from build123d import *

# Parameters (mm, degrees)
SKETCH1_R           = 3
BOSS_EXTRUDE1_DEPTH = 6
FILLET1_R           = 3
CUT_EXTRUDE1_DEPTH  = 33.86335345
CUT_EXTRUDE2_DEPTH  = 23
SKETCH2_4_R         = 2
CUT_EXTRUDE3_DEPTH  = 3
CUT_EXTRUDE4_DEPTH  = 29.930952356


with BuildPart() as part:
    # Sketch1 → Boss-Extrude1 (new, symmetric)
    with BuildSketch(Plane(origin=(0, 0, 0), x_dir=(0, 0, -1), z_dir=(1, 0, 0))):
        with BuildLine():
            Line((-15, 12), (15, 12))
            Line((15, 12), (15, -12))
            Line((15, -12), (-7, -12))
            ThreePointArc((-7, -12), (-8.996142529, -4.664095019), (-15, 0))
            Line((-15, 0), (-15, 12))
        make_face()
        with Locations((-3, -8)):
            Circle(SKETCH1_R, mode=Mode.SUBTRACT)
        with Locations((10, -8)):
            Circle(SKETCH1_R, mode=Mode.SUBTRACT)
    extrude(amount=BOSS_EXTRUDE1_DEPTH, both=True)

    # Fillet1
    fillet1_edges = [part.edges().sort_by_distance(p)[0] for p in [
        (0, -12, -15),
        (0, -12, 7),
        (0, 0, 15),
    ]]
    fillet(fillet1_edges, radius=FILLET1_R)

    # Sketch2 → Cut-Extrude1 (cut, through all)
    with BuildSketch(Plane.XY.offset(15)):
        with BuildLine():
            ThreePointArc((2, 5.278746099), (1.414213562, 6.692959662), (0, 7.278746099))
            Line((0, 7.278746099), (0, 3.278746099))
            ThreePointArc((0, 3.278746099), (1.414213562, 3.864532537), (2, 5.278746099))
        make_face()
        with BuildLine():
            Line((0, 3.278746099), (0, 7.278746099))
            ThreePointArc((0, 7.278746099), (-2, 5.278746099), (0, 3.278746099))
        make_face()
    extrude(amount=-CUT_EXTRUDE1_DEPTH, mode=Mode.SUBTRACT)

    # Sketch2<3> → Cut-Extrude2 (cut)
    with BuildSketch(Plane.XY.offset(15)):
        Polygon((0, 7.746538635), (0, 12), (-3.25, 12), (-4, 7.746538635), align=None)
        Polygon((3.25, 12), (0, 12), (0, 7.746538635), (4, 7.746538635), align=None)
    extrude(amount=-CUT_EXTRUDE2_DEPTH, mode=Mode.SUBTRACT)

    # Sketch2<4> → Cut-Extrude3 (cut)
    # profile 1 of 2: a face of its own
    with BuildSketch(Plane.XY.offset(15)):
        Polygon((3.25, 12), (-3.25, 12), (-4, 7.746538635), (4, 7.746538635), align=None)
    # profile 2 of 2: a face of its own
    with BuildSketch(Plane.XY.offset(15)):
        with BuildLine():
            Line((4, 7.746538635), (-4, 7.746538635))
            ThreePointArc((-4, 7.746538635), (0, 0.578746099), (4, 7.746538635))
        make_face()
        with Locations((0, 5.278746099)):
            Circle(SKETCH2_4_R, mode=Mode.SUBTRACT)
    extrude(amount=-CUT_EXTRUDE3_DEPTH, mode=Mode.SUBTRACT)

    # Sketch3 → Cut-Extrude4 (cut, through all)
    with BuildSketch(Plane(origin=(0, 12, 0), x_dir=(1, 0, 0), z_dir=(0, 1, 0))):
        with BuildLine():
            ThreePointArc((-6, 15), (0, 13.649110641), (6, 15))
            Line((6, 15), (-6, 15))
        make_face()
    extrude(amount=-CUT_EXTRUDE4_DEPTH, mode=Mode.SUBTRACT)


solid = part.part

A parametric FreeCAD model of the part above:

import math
import FreeCAD as App
import Part
import Sketcher
from FreeCAD import Vector
Q = App.Units.Quantity


def edges_at(feature, points):
    """Names of the edges that pass closest to the given points."""
    edges = feature.Shape.Edges
    near = lambda p: min(range(len(edges)), key=lambda i: edges[i].distToShape(Part.Vertex(*p))[0])
    return sorted({f"Edge{near(p) + 1}" for p in points})

doc = App.newDocument("Part")
body = doc.addObject("PartDesign::Body", "Body")

sketch1 = body.newObject("Sketcher::SketchObject", "Sketch")
sketch1.AttachmentSupport = (doc.getObject("YZ_Plane"), [""])
sketch1.MapMode = "FlatFace"
sketch1.addGeometry([
    Part.LineSegment(Vector(12, -15, 0), Vector(12, 15, 0)),
    Part.LineSegment(Vector(12, 15, 0), Vector(0, 15, 0)),
    Part.ArcOfCircle(Part.Circle(Vector(-11.3, 19, 0), Vector(0, 0, 1), 12), math.radians(-93), math.radians(-19)),
    Part.LineSegment(Vector(-12, 7, 0), Vector(-12, -15, 0)),
    Part.LineSegment(Vector(-12, -15, 0), Vector(12, -15, 0)),
    Part.Circle(Vector(-8, -10, 0), Vector(0, 0, 1), 3),
    Part.Circle(Vector(-8, 3, 0), Vector(0, 0, 1), 3),
], False)
sketch1.addConstraint([
    Sketcher.Constraint("Coincident", 0, 2, 1, 1),
    Sketcher.Constraint("Coincident", 1, 2, 2, 2),
    Sketcher.Constraint("Coincident", 2, 1, 3, 1),
    Sketcher.Constraint("Coincident", 3, 2, 4, 1),
    Sketcher.Constraint("Coincident", 4, 2, 0, 1),
    Sketcher.Constraint("Vertical", 0),
    Sketcher.Constraint("Horizontal", 1),
    Sketcher.Constraint("Vertical", 3),
    Sketcher.Constraint("Horizontal", 4),
    Sketcher.Constraint("Equal", 5, 6),
    Sketcher.Constraint("Symmetric", 0, 2, 3, 2, -1, 1),
    Sketcher.Constraint("PointOnObject", 1, 2, -2),
    Sketcher.Constraint("Vertical", 5, 3, 6, 3),
    Sketcher.Constraint("Diameter", 5, Q("6 mm")),
    Sketcher.Constraint("Radius", 2, Q("12 mm")),
    Sketcher.Constraint("DistanceX", 1, 2, 1, 1, Q("12 mm")),
    Sketcher.Constraint("DistanceY", 0, 1, 0, 2, Q("30 mm")),
    Sketcher.Constraint("DistanceY", 3, 2, 3, 1, Q("22 mm")),
    Sketcher.Constraint("DistanceX", 5, 3, -1, 1, Q("8 mm")),
    Sketcher.Constraint("DistanceY", 5, 3, -1, 1, Q("10 mm")),
    Sketcher.Constraint("DistanceY", -1, 1, 6, 3, Q("3 mm")),
])
pad1 = body.newObject("PartDesign::Pad", "Pad")
pad1.Profile = sketch1
pad1.Length = 12
pad1.Midplane = True
doc.recompute()

fillet = body.newObject("PartDesign::Fillet", "Fillet")
fillet.Base = (pad1, edges_at(pad1, [(0, -12, -15), (0, -12, 7), (0, 0, 15)]))
fillet.Radius = 3

sketch2 = body.newObject("Sketcher::SketchObject", "Sketch001")
sketch2.AttachmentSupport = (doc.getObject("XY_Plane"), [""])
sketch2.MapMode = "FlatFace"
sketch2.AttachmentOffset = App.Placement(Vector(0, 0, 15), App.Rotation())
sketch2.addGeometry([
    Part.ArcOfCircle(Part.Circle(Vector(0, 5.3, 0), Vector(0, 0, 1), 2), math.radians(0), math.radians(90)),
    Part.ArcOfCircle(Part.Circle(Vector(0, 5.3, 0), Vector(0, 0, 1), 2), math.radians(90), math.radians(270)),
    Part.ArcOfCircle(Part.Circle(Vector(0, 5.3, 0), Vector(0, 0, 1), 2), math.radians(-90), math.radians(0)),
], False)
sketch2.addConstraint([
    Sketcher.Constraint("Tangent", 0, 2, 1, 1),
    Sketcher.Constraint("Tangent", 1, 2, 2, 1),
    Sketcher.Constraint("Tangent", 2, 2, 0, 1),
    Sketcher.Constraint("PointOnObject", 0, 3, -2),
    Sketcher.Constraint("PointOnObject", 0, 2, -2),
    Sketcher.Constraint("PointOnObject", 1, 2, -2),
    Sketcher.Constraint("Horizontal", 1, 3, 2, 2),
    Sketcher.Constraint("Radius", 0, Q("2 mm")),
    Sketcher.Constraint("DistanceY", -1, 1, 0, 3, Q("5.278746 mm")),
])
pocket1 = body.newObject("PartDesign::Pocket", "Pocket")
pocket1.Profile = sketch2
pocket1.Type = "ThroughAll"

sketch3 = body.newObject("Sketcher::SketchObject", "Sketch002")
sketch3.AttachmentSupport = (doc.getObject("XY_Plane"), [""])
sketch3.MapMode = "FlatFace"
sketch3.AttachmentOffset = App.Placement(Vector(0, 0, 15), App.Rotation())
sketch3.addGeometry([
    Part.LineSegment(Vector(-3.2, 12, 0), Vector(-4, 7.7, 0)),
    Part.LineSegment(Vector(-4, 7.7, 0), Vector(4, 7.7, 0)),
    Part.LineSegment(Vector(4, 7.7, 0), Vector(3.2, 12, 0)),
    Part.LineSegment(Vector(3.2, 12, 0), Vector(-3.2, 12, 0)),
], False)
sketch3.addConstraint([
    Sketcher.Constraint("Coincident", 0, 2, 1, 1),
    Sketcher.Constraint("Coincident", 1, 2, 2, 1),
    Sketcher.Constraint("Coincident", 2, 2, 3, 1),
    Sketcher.Constraint("Coincident", 3, 2, 0, 1),
    Sketcher.Constraint("Horizontal", 1),
    Sketcher.Constraint("Horizontal", 3),
    Sketcher.Constraint("Equal", 0, 2),
    Sketcher.Constraint("DistanceX", 1, 1, 1, 2, Q("8 mm")),
    Sketcher.Constraint("Angle", 0, Q("-100 deg")),
    Sketcher.Constraint("DistanceX", 3, 2, 3, 1, Q("6.5 mm")),
    Sketcher.Constraint("DistanceX", 0, 2, -1, 1, Q("4 mm")),
    Sketcher.Constraint("DistanceY", -1, 1, 2, 2, Q("12 mm")),
])
pocket2 = body.newObject("PartDesign::Pocket", "Pocket001")
pocket2.Profile = sketch3
pocket2.Length = 23

sketch4 = body.newObject("Sketcher::SketchObject", "Sketch003")
sketch4.AttachmentSupport = (doc.getObject("XY_Plane"), [""])
sketch4.MapMode = "FlatFace"
sketch4.AttachmentOffset = App.Placement(Vector(0, 0, 15), App.Rotation())
sketch4.addGeometry([
    Part.LineSegment(Vector(3.2, 12, 0), Vector(-3.2, 12, 0)),
    Part.LineSegment(Vector(-3.2, 12, 0), Vector(-4, 7.7, 0)),
    Part.ArcOfCircle(Part.Circle(Vector(0, 5.3, 0), Vector(0, 0, 1), 4.7), math.radians(148), math.radians(392)),
    Part.LineSegment(Vector(4, 7.7, 0), Vector(3.2, 12, 0)),
    Part.Circle(Vector(0, 5.3, 0), Vector(0, 0, 1), 2),
], False)
sketch4.addConstraint([
    Sketcher.Constraint("Coincident", 0, 2, 1, 1),
    Sketcher.Constraint("Coincident", 1, 2, 2, 1),
    Sketcher.Constraint("Coincident", 2, 2, 3, 1),
    Sketcher.Constraint("Coincident", 3, 2, 0, 1),
    Sketcher.Constraint("Horizontal", 0),
    Sketcher.Constraint("Coincident", 4, 3, 2, 3),
    Sketcher.Constraint("Symmetric", 1, 2, 2, 2, -2),
    Sketcher.Constraint("Equal", 1, 3),
    Sketcher.Constraint("Diameter", 4, Q("4 mm")),
    Sketcher.Constraint("Radius", 2, Q("4.7 mm")),
    Sketcher.Constraint("Angle", 1, Q("-100 deg")),
    Sketcher.Constraint("DistanceX", 0, 2, 0, 1, Q("6.5 mm")),
    Sketcher.Constraint("DistanceY", -1, 1, 0, 2, Q("12 mm")),
    Sketcher.Constraint("DistanceX", 1, 2, -1, 1, Q("4 mm")),
])
pocket3 = body.newObject("PartDesign::Pocket", "Pocket002")
pocket3.Profile = sketch4
pocket3.Length = 3

sketch5 = body.newObject("Sketcher::SketchObject", "Sketch004")
sketch5.AttachmentSupport = (doc.getObject("XZ_Plane"), [""])
sketch5.MapMode = "FlatFace"
sketch5.AttachmentOffset = App.Placement(Vector(0, 0, -12), App.Rotation())
sketch5.addGeometry([
    Part.ArcOfCircle(Part.Circle(Vector(0, -28, 0), Vector(0, 0, 1), 14), math.radians(65), math.radians(115)),
    Part.LineSegment(Vector(6, -15, 0), Vector(-6, -15, 0)),
], False)
sketch5.addConstraint([
    Sketcher.Constraint("Coincident", 0, 1, 1, 1),
    Sketcher.Constraint("Coincident", 1, 2, 0, 2),
    Sketcher.Constraint("Horizontal", 1),
    Sketcher.Constraint("PointOnObject", 0, 3, -2),
    Sketcher.Constraint("Radius", 0, Q("14 mm")),
    Sketcher.Constraint("DistanceX", 1, 2, 1, 1, Q("12 mm")),
    Sketcher.Constraint("DistanceY", 0, 1, -1, 1, Q("15 mm")),
])
pocket4 = body.newObject("PartDesign::Pocket", "Pocket003")
pocket4.Profile = sketch5
pocket4.Type = "ThroughAll"
pocket4.Reversed = True

doc.recompute()
